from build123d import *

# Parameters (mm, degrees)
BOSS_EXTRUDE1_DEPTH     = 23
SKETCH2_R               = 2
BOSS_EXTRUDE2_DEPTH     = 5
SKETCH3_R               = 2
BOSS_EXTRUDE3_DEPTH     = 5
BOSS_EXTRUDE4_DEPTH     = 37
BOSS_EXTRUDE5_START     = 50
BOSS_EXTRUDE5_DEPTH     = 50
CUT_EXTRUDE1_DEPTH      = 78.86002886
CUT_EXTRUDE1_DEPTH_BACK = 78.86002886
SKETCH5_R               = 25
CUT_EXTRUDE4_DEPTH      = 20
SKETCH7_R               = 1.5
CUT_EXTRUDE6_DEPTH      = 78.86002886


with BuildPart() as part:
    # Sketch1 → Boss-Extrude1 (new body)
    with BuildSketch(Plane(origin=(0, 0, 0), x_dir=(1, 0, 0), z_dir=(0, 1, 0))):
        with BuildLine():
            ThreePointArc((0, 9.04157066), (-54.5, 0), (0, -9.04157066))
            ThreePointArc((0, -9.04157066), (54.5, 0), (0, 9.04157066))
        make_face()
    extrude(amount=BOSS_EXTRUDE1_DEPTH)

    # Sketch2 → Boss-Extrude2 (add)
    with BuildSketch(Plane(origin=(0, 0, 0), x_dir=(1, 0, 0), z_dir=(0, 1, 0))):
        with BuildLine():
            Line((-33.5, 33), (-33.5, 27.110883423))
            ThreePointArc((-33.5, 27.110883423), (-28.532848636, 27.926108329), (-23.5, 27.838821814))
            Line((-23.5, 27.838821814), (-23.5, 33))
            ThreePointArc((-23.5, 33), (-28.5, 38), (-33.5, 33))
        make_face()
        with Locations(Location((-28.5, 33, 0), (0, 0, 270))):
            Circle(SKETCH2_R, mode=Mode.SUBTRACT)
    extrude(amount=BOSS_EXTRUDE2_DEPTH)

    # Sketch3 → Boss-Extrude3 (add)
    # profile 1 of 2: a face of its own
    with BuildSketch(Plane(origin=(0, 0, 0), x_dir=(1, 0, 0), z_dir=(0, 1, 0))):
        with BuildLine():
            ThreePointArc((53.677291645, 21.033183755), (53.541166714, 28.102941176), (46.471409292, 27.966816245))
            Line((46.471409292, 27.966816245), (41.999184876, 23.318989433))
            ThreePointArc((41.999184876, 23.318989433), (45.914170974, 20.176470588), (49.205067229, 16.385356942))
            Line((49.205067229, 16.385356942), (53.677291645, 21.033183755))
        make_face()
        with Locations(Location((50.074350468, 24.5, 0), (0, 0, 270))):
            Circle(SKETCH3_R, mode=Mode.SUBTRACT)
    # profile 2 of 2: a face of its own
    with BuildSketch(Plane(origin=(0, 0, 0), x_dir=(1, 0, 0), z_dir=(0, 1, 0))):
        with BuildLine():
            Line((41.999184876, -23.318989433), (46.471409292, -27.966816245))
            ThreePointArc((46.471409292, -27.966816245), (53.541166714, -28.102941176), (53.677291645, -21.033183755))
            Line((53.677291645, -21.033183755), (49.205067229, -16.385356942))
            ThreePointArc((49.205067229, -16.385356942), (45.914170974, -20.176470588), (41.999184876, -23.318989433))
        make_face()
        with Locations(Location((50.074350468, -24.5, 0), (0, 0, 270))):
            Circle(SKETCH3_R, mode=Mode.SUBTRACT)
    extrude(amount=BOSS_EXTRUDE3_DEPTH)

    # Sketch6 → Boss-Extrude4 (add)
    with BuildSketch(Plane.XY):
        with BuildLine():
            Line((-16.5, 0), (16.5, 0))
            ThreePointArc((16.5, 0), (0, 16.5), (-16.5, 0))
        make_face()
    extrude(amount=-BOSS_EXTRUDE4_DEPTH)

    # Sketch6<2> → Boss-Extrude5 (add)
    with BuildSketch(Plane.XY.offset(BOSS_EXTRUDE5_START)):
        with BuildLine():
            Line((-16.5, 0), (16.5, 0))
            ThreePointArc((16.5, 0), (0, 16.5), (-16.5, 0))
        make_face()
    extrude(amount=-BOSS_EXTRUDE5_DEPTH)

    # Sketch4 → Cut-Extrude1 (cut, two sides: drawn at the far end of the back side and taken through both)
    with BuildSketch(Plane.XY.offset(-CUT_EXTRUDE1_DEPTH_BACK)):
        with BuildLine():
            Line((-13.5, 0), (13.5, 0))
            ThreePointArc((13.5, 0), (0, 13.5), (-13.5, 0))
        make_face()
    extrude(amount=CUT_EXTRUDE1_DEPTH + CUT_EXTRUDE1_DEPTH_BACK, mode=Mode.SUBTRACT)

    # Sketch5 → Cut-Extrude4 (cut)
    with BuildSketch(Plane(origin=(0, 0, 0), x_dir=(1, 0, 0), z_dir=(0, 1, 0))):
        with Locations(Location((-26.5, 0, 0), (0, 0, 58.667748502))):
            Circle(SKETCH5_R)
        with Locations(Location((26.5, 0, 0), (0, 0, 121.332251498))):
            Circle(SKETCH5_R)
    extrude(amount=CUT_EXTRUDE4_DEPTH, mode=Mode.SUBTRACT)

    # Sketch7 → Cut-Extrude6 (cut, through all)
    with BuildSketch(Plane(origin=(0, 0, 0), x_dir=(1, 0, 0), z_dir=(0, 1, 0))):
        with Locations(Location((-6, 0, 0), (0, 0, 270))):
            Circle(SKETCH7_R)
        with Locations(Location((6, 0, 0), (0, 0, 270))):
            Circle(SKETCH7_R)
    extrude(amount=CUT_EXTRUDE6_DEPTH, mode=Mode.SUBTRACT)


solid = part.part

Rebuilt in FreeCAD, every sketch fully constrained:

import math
import FreeCAD as App
import Part
import Sketcher

V = App.Vector
Q = App.Units.Quantity

doc = App.newDocument("Part")
body = doc.addObject("PartDesign::Body", "Body")

# Sketch on XZ plane
sketch1 = body.newObject("Sketcher::SketchObject", "Sketch")
sketch1.AttachmentSupport = (doc.getObject("XZ_Plane"), [""])
sketch1.MapMode = "FlatFace"
sketch1.addGeometry(Part.ArcOfCircle(Part.Circle(V(-26, 0, 0), V(0, 0, 1), 28), math.radians(19), math.radians(341)), False)
sketch1.addGeometry(Part.ArcOfCircle(Part.Circle(V(26, 0, 0), V(0, 0, 1), 28), math.radians(-161), math.radians(161)), False)
sketch1.addConstraint(Sketcher.Constraint("Coincident", 0, 1, 1, 2))
sketch1.addConstraint(Sketcher.Constraint("Coincident", 1, 1, 0, 2))
sketch1.addConstraint(Sketcher.Constraint("Equal", 0, 1))
sketch1.addConstraint(Sketcher.Constraint("Symmetric", 0, 3, 1, 3, -1, 1))
sketch1.addConstraint(Sketcher.Constraint("PointOnObject", 0, 3, -1))
sketch1.addConstraint(Sketcher.Constraint("Radius", 0, Q("28 mm")))
sketch1.addConstraint(Sketcher.Constraint("DistanceX", 0, 3, 1, 3, Q("53 mm")))
pad1 = body.newObject("PartDesign::Pad", "Pad")
pad1.Profile = sketch1
pad1.Length = 23
pad1.Reversed = True

# Sketch on XZ plane
sketch2 = body.newObject("Sketcher::SketchObject", "Sketch001")
sketch2.AttachmentSupport = (doc.getObject("XZ_Plane"), [""])
sketch2.MapMode = "FlatFace"
sketch2.addGeometry(Part.LineSegment(V(-33.5, -33, 0), V(-33.5, -27.1, 0)), False)
sketch2.addGeometry(Part.ArcOfCircle(Part.Circle(V(-26.5, 0, 0), V(0, 0, 1), 28), math.radians(-104), math.radians(-84)), False)
sketch2.addGeometry(Part.LineSegment(V(-23.5, -27.8, 0), V(-23.5, -33, 0)), False)
sketch2.addGeometry(Part.ArcOfCircle(Part.Circle(V(-28.5, -33, 0), V(0, 0, 1), 5), math.radians(180), math.radians(360)), False)
sketch2.addGeometry(Part.Circle(V(-28.5, -33, 0), V(0, 0, 1), 2), False)
sketch2.addConstraint(Sketcher.Constraint("Coincident", 0, 2, 1, 1))
sketch2.addConstraint(Sketcher.Constraint("Coincident", 1, 2, 2, 1))
sketch2.addConstraint(Sketcher.Constraint("Tangent", 2, 2, 3, 2))
sketch2.addConstraint(Sketcher.Constraint("Tangent", 3, 1, 0, 1))
sketch2.addConstraint(Sketcher.Constraint("Vertical", 0))
sketch2.addConstraint(Sketcher.Constraint("Vertical", 2))
sketch2.addConstraint(Sketcher.Constraint("Coincident", 4, 3, 3, 3))
sketch2.addConstraint(Sketcher.Constraint("PointOnObject", 1, 3, -1))
sketch2.addConstraint(Sketcher.Constraint("Diameter", 4, Q("4 mm")))
sketch2.addConstraint(Sketcher.Constraint("Radius", 1, Q("28 mm")))
sketch2.addConstraint(Sketcher.Constraint("Radius", 3, Q("5 mm")))
sketch2.addConstraint(Sketcher.Constraint("DistanceY", 3, 3, -1, 1, Q("33 mm")))
sketch2.addConstraint(Sketcher.Constraint("DistanceX", 3, 3, 1, 3, Q("2 mm")))
sketch2.addConstraint(Sketcher.Constraint("DistanceX", 1, 3, -1, 1, Q("26.5 mm")))
pad2 = body.newObject("PartDesign::Pad", "Pad001")
pad2.Profile = sketch2
pad2.Length = 5
pad2.Reversed = True

# Sketch on XZ plane
sketch3 = body.newObject("Sketcher::SketchObject", "Sketch002")
sketch3.AttachmentSupport = (doc.getObject("XZ_Plane"), [""])
sketch3.MapMode = "FlatFace"
sketch3.addGeometry(Part.ArcOfCircle(Part.Circle(V(50.1, -24.5, 0), V(0, 0, 1), 5), math.radians(-136), math.radians(44)), False)
sketch3.addGeometry(Part.LineSegment(V(46.5, -28, 0), V(42, -23.3, 0)), False)
sketch3.addGeometry(Part.ArcOfCircle(Part.Circle(V(26.5, 0, 0), V(0, 0, 1), 28), math.radians(-56), math.radians(-36)), False)
sketch3.addGeometry(Part.LineSegment(V(49.2, -16.4, 0), V(53.7, -21, 0)), False)
sketch3.addGeometry(Part.Circle(V(50.1, -24.5, 0), V(0, 0, 1), 2), False)
sketch3.addGeometry(Part.LineSegment(V(42, 23.3, 0), V(46.5, 28, 0)), False)
sketch3.addGeometry(Part.ArcOfCircle(Part.Circle(V(50.1, 24.5, 0), V(0, 0, 1), 5), math.radians(-44), math.radians(136)), False)
sketch3.addGeometry(Part.LineSegment(V(53.7, 21, 0), V(49.2, 16.4, 0)), False)
sketch3.addGeometry(Part.ArcOfCircle(Part.Circle(V(26.5, 0, 0), V(0, 0, 1), 28), math.radians(36), math.radians(56)), False)
sketch3.addGeometry(Part.Circle(V(50.1, 24.5, 0), V(0, 0, 1), 2), False)
sketch3.addConstraint(Sketcher.Constraint("Tangent", 0, 1, 1, 1))
sketch3.addConstraint(Sketcher.Constraint("Coincident", 1, 2, 2, 1))
sketch3.addConstraint(Sketcher.Constraint("Coincident", 2, 2, 3, 1))
sketch3.addConstraint(Sketcher.Constraint("Tangent", 3, 2, 0, 2))
sketch3.addConstraint(Sketcher.Constraint("Tangent", 5, 2, 6, 2))
sketch3.addConstraint(Sketcher.Constraint("Tangent", 6, 1, 7, 1))
sketch3.addConstraint(Sketcher.Constraint("Coincident", 7, 2, 8, 1))
sketch3.addConstraint(Sketcher.Constraint("Coincident", 8, 2, 5, 1))
sketch3.addConstraint(Sketcher.Constraint("Coincident", 4, 3, 0, 3))
sketch3.addConstraint(Sketcher.Constraint("Coincident", 8, 3, 2, 3))
sketch3.addConstraint(Sketcher.Constraint("Coincident", 9, 3, 6, 3))
sketch3.addConstraint(Sketcher.Constraint("Equal", 0, 6))
sketch3.addConstraint(Sketcher.Constraint("Equal", 2, 8))
sketch3.addConstraint(Sketcher.Constraint("Equal", 4, 9))
sketch3.addConstraint(Sketcher.Constraint("Symmetric", 0, 3, 6, 3, -1))
sketch3.addConstraint(Sketcher.Constraint("Symmetric", 2, 2, 7, 2, -1))
sketch3.addConstraint(Sketcher.Constraint("Parallel", 1, 3))
sketch3.addConstraint(Sketcher.Constraint("Parallel", 5, 7))
sketch3.addConstraint(Sketcher.Constraint("Equal", 1, 3))
sketch3.addConstraint(Sketcher.Constraint("Diameter", 4, Q("4 mm")))
sketch3.addConstraint(Sketcher.Constraint("Radius", 0, Q("5 mm")))
sketch3.addConstraint(Sketcher.Constraint("Radius", 2, Q("28 mm")))
sketch3.addConstraint(Sketcher.Constraint("DistanceY", 0, 3, 6, 3, Q("49 mm")))
sketch3.addConstraint(Sketcher.Constraint("DistanceX", -1, 1, 2, 3, Q("26.5 mm")))
sketch3.addConstraint(Sketcher.Constraint("DistanceX", -1, 1, 0, 3, Q("50.07435 mm")))
pad3 = body.newObject("PartDesign::Pad", "Pad002")
pad3.Profile = sketch3
pad3.Length = 5
pad3.Reversed = True

# Sketch on XY plane
sketch4 = body.newObject("Sketcher::SketchObject", "Sketch003")
sketch4.AttachmentSupport = (doc.getObject("XY_Plane"), [""])
sketch4.MapMode = "FlatFace"
sketch4.addGeometry(Part.LineSegment(V(-16, 0, 0), V(16, 0, 0)), False)
sketch4.addGeometry(Part.ArcOfCircle(Part.Circle(V(0, 0, 0), V(0, 0, 1), 16), math.radians(0), math.radians(180)), False)
sketch4.addConstraint(Sketcher.Constraint("Coincident", 0, 1, 1, 2))
sketch4.addConstraint(Sketcher.Constraint("Coincident", 1, 1, 0, 2))
sketch4.addConstraint(Sketcher.Constraint("Horizontal", 0))
sketch4.addConstraint(Sketcher.Constraint("Coincident", 1, 3, -1, 1))
sketch4.addConstraint(Sketcher.Constraint("PointOnObject", 0, 1, -1))
sketch4.addConstraint(Sketcher.Constraint("Radius", 1, Q("16.5 mm")))
pad4 = body.newObject("PartDesign::Pad", "Pad003")
pad4.Profile = sketch4
pad4.Length = 37
pad4.Reversed = True

# Sketch on XY plane
sketch5 = body.newObject("Sketcher::SketchObject", "Sketch004")
sketch5.AttachmentSupport = (doc.getObject("XY_Plane"), [""])
sketch5.MapMode = "FlatFace"
sketch5.AttachmentOffset = App.Placement(V(0, 0, 50), App.Rotation())
sketch5.addGeometry(Part.LineSegment(V(-16, 0, 0), V(16, 0, 0)), False)
sketch5.addGeometry(Part.ArcOfCircle(Part.Circle(V(0, 0, 0), V(0, 0, 1), 16), math.radians(0), math.radians(180)), False)
sketch5.addConstraint(Sketcher.Constraint("Coincident", 0, 1, 1, 2))
sketch5.addConstraint(Sketcher.Constraint("Coincident", 1, 1, 0, 2))
sketch5.addConstraint(Sketcher.Constraint("Horizontal", 0))
sketch5.addConstraint(Sketcher.Constraint("Coincident", 1, 3, -1, 1))
sketch5.addConstraint(Sketcher.Constraint("PointOnObject", 0, 1, -1))
sketch5.addConstraint(Sketcher.Constraint("Radius", 1, Q("16.5 mm")))
pad5 = body.newObject("PartDesign::Pad", "Pad004")
pad5.Profile = sketch5
pad5.Length = 50
pad5.Reversed = True

# Sketch on XY plane
sketch6 = body.newObject("Sketcher::SketchObject", "Sketch005")
sketch6.AttachmentSupport = (doc.getObject("XY_Plane"), [""])
sketch6.MapMode = "FlatFace"
sketch6.addGeometry(Part.LineSegment(V(-14, 0, 0), V(14, 0, 0)), False)
sketch6.addGeometry(Part.ArcOfCircle(Part.Circle(V(0, 0, 0), V(0, 0, 1), 14), math.radians(0), math.radians(180)), False)
sketch6.addConstraint(Sketcher.Constraint("Coincident", 0, 1, 1, 2))
sketch6.addConstraint(Sketcher.Constraint("Coincident", 1, 1, 0, 2))
sketch6.addConstraint(Sketcher.Constraint("Horizontal", 0))
sketch6.addConstraint(Sketcher.Constraint("Coincident", 1, 3, -1, 1))
sketch6.addConstraint(Sketcher.Constraint("PointOnObject", 0, 1, -1))
sketch6.addConstraint(Sketcher.Constraint("Radius", 1, Q("13.5 mm")))
pocket1 = body.newObject("PartDesign::Pocket", "Pocket")
pocket1.Profile = sketch6
pocket1.Type = "ThroughAll"
pocket1.Midplane = True

# Sketch on XZ plane
sketch7 = body.newObject("Sketcher::SketchObject", "Sketch006")
sketch7.AttachmentSupport = (doc.getObject("XZ_Plane"), [""])
sketch7.MapMode = "FlatFace"
sketch7.addGeometry(Part.Circle(V(-26, 0, 0), V(0, 0, 1), 25), False)
sketch7.addGeometry(Part.Circle(V(26, 0, 0), V(0, 0, 1), 25), False)
sketch7.addConstraint(Sketcher.Constraint("Equal", 0, 1))
sketch7.addConstraint(Sketcher.Constraint("Symmetric", 0, 3, 1, 3, -1, 1))
sketch7.addConstraint(Sketcher.Constraint("PointOnObject", 0, 3, -1))
sketch7.addConstraint(Sketcher.Constraint("Diameter", 0, Q("50 mm")))
sketch7.addConstraint(Sketcher.Constraint("DistanceX", 0, 3, 1, 3, Q("53 mm")))
pocket2 = body.newObject("PartDesign::Pocket", "Pocket001")
pocket2.Profile = sketch7
pocket2.Length = 20

# Sketch on XZ plane
sketch8 = body.newObject("Sketcher::SketchObject", "Sketch007")
sketch8.AttachmentSupport = (doc.getObject("XZ_Plane"), [""])
sketch8.MapMode = "FlatFace"
sketch8.addGeometry(Part.Circle(V(-6, 0, 0), V(0, 0, 1), 1.5), False)
sketch8.addGeometry(Part.Circle(V(6, 0, 0), V(0, 0, 1), 1.5), False)
sketch8.addConstraint(Sketcher.Constraint("Equal", 0, 1))
sketch8.addConstraint(Sketcher.Constraint("Symmetric", 0, 3, 1, 3, -1, 1))
sketch8.addConstraint(Sketcher.Constraint("PointOnObject", 0, 3, -1))
sketch8.addConstraint(Sketcher.Constraint("Diameter", 0, Q("3 mm")))
sketch8.addConstraint(Sketcher.Constraint("DistanceX", 0, 3, -1, 1, Q("6 mm")))
pocket3 = body.newObject("PartDesign::Pocket", "Pocket002")
pocket3.Profile = sketch8
pocket3.Type = "ThroughAll"

doc.recompute()
